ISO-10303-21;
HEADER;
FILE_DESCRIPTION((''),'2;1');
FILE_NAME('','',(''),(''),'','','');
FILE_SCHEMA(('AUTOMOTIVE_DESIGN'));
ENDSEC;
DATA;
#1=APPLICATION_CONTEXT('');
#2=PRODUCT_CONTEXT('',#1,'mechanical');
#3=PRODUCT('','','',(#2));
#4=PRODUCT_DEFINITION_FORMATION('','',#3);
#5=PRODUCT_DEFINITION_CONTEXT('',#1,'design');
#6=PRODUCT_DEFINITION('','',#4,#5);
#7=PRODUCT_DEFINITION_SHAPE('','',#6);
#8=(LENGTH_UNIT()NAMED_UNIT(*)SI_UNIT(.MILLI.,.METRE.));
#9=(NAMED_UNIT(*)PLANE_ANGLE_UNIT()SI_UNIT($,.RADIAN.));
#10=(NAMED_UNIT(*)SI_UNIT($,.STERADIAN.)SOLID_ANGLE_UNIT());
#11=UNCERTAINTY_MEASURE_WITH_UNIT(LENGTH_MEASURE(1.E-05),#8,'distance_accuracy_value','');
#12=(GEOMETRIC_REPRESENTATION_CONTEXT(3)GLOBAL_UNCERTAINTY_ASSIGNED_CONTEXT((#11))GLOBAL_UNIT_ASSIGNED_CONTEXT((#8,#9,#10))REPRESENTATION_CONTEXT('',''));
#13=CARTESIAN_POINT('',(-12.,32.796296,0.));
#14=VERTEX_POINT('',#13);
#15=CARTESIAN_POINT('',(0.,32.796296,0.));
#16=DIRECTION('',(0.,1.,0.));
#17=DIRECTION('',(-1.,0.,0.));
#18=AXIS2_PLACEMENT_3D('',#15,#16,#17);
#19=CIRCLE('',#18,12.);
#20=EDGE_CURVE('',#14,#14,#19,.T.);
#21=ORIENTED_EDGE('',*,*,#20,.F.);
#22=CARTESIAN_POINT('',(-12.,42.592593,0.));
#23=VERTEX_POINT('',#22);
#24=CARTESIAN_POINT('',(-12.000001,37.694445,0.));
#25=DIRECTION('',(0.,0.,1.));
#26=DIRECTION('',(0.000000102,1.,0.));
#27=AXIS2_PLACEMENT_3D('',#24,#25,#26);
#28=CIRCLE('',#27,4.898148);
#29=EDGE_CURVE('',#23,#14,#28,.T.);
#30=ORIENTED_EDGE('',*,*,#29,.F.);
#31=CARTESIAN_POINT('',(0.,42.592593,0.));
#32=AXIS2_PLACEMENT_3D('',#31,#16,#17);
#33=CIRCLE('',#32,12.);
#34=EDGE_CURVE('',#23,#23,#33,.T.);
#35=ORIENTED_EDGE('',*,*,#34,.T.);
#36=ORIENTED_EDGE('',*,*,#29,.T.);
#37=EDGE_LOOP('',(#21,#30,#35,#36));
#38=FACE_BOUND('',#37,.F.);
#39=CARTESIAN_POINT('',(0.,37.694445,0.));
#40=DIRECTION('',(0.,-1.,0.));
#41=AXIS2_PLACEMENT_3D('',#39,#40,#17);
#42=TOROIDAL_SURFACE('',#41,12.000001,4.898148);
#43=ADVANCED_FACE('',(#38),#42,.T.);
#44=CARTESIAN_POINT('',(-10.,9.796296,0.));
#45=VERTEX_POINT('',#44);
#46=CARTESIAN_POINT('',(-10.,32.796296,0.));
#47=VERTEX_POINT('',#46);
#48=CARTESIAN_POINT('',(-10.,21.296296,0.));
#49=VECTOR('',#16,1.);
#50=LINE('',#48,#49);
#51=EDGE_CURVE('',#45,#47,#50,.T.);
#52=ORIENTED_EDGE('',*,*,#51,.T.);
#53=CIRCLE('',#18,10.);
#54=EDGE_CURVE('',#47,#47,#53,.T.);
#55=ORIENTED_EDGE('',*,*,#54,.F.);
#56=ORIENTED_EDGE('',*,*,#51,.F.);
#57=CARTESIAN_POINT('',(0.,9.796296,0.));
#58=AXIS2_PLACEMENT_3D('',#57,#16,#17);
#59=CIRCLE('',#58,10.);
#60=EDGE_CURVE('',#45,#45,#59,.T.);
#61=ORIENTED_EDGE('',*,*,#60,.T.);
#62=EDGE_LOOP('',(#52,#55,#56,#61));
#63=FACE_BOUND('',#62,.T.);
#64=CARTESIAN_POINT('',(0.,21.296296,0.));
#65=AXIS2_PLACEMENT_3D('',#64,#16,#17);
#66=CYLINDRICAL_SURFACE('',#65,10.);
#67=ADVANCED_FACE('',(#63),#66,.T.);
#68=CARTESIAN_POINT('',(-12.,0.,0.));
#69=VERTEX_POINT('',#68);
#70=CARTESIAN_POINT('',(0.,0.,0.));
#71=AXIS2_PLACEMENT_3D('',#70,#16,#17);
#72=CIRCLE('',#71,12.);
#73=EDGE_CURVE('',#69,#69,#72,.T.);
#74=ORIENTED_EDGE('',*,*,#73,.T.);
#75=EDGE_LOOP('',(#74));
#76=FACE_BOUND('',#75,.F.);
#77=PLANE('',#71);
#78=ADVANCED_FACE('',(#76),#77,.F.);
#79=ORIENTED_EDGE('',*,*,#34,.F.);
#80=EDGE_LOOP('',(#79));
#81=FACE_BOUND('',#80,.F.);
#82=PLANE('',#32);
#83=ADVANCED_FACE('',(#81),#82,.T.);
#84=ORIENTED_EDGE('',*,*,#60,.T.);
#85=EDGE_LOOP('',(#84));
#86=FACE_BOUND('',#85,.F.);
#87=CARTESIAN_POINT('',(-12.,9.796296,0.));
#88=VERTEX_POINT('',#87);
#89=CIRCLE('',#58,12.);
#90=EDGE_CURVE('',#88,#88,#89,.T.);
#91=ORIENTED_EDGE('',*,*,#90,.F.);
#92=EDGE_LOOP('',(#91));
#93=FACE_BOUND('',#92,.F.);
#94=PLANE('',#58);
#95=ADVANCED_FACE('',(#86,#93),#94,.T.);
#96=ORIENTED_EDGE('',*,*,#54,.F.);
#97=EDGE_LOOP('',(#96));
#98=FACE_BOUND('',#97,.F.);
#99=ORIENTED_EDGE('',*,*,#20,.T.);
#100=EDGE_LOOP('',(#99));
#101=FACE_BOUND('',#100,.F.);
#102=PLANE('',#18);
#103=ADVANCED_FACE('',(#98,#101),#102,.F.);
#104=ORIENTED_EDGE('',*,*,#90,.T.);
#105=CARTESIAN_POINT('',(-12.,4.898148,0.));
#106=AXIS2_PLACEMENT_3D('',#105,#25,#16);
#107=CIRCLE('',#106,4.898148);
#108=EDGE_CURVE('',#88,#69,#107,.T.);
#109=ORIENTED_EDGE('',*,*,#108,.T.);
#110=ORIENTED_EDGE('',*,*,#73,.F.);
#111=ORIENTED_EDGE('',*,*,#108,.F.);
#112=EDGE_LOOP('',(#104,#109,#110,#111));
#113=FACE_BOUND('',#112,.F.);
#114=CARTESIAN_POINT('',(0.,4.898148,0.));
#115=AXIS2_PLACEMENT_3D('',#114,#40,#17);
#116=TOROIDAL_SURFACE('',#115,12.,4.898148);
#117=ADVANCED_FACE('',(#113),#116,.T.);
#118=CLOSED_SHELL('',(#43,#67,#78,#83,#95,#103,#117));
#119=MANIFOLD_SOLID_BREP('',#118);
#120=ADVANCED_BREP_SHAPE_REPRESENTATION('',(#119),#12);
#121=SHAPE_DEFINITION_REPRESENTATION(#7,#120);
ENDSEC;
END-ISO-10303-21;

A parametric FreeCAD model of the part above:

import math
import FreeCAD as App
import Part
import Sketcher
Q = App.Units.Quantity

doc = App.newDocument("Part")
body = doc.addObject("PartDesign::Body", "Body")

# Sketch on XY plane
sketch1 = body.newObject("Sketcher::SketchObject", "Sketch")
sketch1.AttachmentSupport = (doc.getObject("XY_Plane"), [""])
sketch1.MapMode = "FlatFace"
sketch1.addGeometry(Part.LineSegment(App.Vector(-12, 0, 0), App.Vector(0, 0, 0)), False)
sketch1.addGeometry(Part.LineSegment(App.Vector(0, 0, 0), App.Vector(0, 42.6, 0)), False)
sketch1.addGeometry(Part.LineSegment(App.Vector(0, 42.6, 0), App.Vector(-12, 42.6, 0)), False)
sketch1.addGeometry(Part.ArcOfCircle(Part.Circle(App.Vector(-12, 37.7, 0), App.Vector(0, 0, 1), 4.9), math.radians(90), math.radians(270)), False)
sketch1.addGeometry(Part.LineSegment(App.Vector(-12, 32.8, 0), App.Vector(-10, 32.8, 0)), False)
sketch1.addGeometry(Part.LineSegment(App.Vector(-10, 32.8, 0), App.Vector(-10, 9.8, 0)), False)
sketch1.addGeometry(Part.LineSegment(App.Vector(-10, 9.8, 0), App.Vector(-12, 9.8, 0)), False)
sketch1.addGeometry(Part.ArcOfCircle(Part.Circle(App.Vector(-12, 4.9, 0), App.Vector(0, 0, 1), 4.9), math.radians(90), math.radians(270)), False)
sketch1.addConstraint(Sketcher.Constraint("Coincident", 0, 2, 1, 1))
sketch1.addConstraint(Sketcher.Constraint("Coincident", 1, 2, 2, 1))
sketch1.addConstraint(Sketcher.Constraint("Tangent", 2, 2, 3, 1))
sketch1.addConstraint(Sketcher.Constraint("Tangent", 3, 2, 4, 1))
sketch1.addConstraint(Sketcher.Constraint("Coincident", 4, 2, 5, 1))
sketch1.addConstraint(Sketcher.Constraint("Coincident", 5, 2, 6, 1))
sketch1.addConstraint(Sketcher.Constraint("Tangent", 6, 2, 7, 1))
sketch1.addConstraint(Sketcher.Constraint("Tangent", 7, 2, 0, 1))
sketch1.addConstraint(Sketcher.Constraint("Horizontal", 0))
sketch1.addConstraint(Sketcher.Constraint("Vertical", 1))
sketch1.addConstraint(Sketcher.Constraint("Horizontal", 2))
sketch1.addConstraint(Sketcher.Constraint("Horizontal", 4))
sketch1.addConstraint(Sketcher.Constraint("Vertical", 5))
sketch1.addConstraint(Sketcher.Constraint("Horizontal", 6))
sketch1.addConstraint(Sketcher.Constraint("Coincident", 0, 2, -1, 1))
sketch1.addConstraint(Sketcher.Constraint("Equal", 3, 7))
sketch1.addConstraint(Sketcher.Constraint("Vertical", 3, 3, 7, 3))
sketch1.addConstraint(Sketcher.Constraint("DistanceX", 0, 1, 0, 2, Q("12 mm")))
sketch1.addConstraint(Sketcher.Constraint("DistanceX", 4, 1, 4, 2, Q("2 mm")))
sketch1.addConstraint(Sketcher.Constraint("DistanceY", 5, 2, 5, 1, Q("23 mm")))
sketch1.addConstraint(Sketcher.Constraint("Radius", 3, Q("4.898148 mm")))
revolution = body.newObject("PartDesign::Revolution", "Revolution")
revolution.Profile = sketch1
revolution.ReferenceAxis = (sketch1, ["V_Axis"])
revolution.Angle = 360

doc.recompute()
